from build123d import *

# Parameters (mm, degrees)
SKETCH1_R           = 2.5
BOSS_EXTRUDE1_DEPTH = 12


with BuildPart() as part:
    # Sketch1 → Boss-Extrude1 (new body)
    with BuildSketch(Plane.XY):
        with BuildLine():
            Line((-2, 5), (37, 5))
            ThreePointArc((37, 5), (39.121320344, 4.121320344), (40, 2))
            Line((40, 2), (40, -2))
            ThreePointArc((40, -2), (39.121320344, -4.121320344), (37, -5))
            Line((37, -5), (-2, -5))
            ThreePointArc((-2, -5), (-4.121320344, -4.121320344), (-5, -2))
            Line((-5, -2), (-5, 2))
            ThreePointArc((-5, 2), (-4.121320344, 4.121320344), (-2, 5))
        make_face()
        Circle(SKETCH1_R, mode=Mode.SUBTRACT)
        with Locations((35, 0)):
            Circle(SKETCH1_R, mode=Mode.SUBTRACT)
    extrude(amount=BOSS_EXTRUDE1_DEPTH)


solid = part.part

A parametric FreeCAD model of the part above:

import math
import FreeCAD as App
import Part
import Sketcher
from FreeCAD import Vector
Q = App.Units.Quantity

doc = App.newDocument("Part")
body = doc.addObject("PartDesign::Body", "Body")

sketch1 = doc.addObject("Sketcher::SketchObject", "Sketch")
body.addObject(sketch1)
sketch1.AttachmentSupport = (doc.XY_Plane, [""])
sketch1.MapMode = "FlatFace"
sketch1.addGeometry([
    Part.LineSegment(Vector(37, 5, 0), Vector(-2, 5, 0)),
    Part.ArcOfCircle(Part.Circle(Vector(-2, 2, 0), Vector(0, 0, 1), 3), math.radians(90), math.radians(180)),
    Part.LineSegment(Vector(-5, 2, 0), Vector(-5, -2, 0)),
    Part.ArcOfCircle(Part.Circle(Vector(-2, -2, 0), Vector(0, 0, 1), 3), math.radians(180), math.radians(270)),
    Part.LineSegment(Vector(-2, -5, 0), Vector(37, -5, 0)),
    Part.ArcOfCircle(Part.Circle(Vector(37, -2, 0), Vector(0, 0, 1), 3), math.radians(-90), math.radians(0)),
    Part.LineSegment(Vector(40, -2, 0), Vector(40, 2, 0)),
    Part.ArcOfCircle(Part.Circle(Vector(37, 2, 0), Vector(0, 0, 1), 3), math.radians(0), math.radians(90)),
    Part.Circle(Vector(35, 0, 0), Vector(0, 0, 1), 2.5),
    Part.Circle(Vector(0, 0, 0), Vector(0, 0, 1), 2.5),
], False)
sketch1.addConstraint([
    Sketcher.Constraint("Tangent", 0, 2, 1, 1),
    Sketcher.Constraint("Tangent", 1, 2, 2, 1),
    Sketcher.Constraint("Tangent", 2, 2, 3, 1),
    Sketcher.Constraint("Tangent", 3, 2, 4, 1),
    Sketcher.Constraint("Tangent", 4, 2, 5, 1),
    Sketcher.Constraint("Tangent", 5, 2, 6, 1),
    Sketcher.Constraint("Tangent", 6, 2, 7, 1),
    Sketcher.Constraint("Tangent", 7, 2, 0, 1),
    Sketcher.Constraint("Horizontal", 0),
    Sketcher.Constraint("Vertical", 2),
    Sketcher.Constraint("Horizontal", 4),
    Sketcher.Constraint("Vertical", 6),
    Sketcher.Constraint("Coincident", 9, 3, -1, 1),
    Sketcher.Constraint("Equal", 1, 3),
    Sketcher.Constraint("Equal", 3, 5),
    Sketcher.Constraint("Equal", 5, 7),
    Sketcher.Constraint("Equal", 8, 9),
    Sketcher.Constraint("PointOnObject", 8, 3, -1),
    Sketcher.Constraint("Diameter", 8, Q("5 mm")),
    Sketcher.Constraint("Radius", 1, Q("3 mm")),
    Sketcher.Constraint("DistanceX", 0, 2, 0, 1, Q("39 mm")),
    Sketcher.Constraint("DistanceY", 2, 2, 2, 1, Q("4 mm")),
    Sketcher.Constraint("DistanceX", 1, 3, -1, 1, Q("2 mm")),
    Sketcher.Constraint("DistanceY", -1, 1, 1, 3, Q("2 mm")),
    Sketcher.Constraint("DistanceX", -1, 1, 8, 3, Q("35 mm")),
])
pad1 = doc.addObject("PartDesign::Pad", "Pad")
body.addObject(pad1)
pad1.Profile = sketch1
pad1.Length = 12

doc.recompute()
